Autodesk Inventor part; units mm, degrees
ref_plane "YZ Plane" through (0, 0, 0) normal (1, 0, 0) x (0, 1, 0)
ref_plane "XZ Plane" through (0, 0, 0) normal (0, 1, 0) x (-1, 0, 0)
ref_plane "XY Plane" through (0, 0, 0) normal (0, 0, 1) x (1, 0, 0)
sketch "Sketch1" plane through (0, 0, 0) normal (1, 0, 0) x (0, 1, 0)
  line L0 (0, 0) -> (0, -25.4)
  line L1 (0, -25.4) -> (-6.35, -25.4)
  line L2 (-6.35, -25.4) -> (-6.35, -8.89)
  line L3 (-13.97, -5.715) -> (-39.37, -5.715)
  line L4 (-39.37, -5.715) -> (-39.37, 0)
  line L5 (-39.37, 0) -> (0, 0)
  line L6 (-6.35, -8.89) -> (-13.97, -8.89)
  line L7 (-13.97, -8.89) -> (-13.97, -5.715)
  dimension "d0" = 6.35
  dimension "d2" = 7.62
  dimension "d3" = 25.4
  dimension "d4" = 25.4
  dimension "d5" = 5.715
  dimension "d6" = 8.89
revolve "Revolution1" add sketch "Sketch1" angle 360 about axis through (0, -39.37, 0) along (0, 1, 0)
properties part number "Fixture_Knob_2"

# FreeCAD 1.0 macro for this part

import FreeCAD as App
import Part
import Sketcher
from FreeCAD import Vector
Q = App.Units.Quantity


def add_polygon(sketch, points):
    """Adds a closed chain of lines whose ends are joined by coincident constraints."""
    first, n = sketch.GeometryCount, len(points)
    for a, b in zip(points, points[1:] + points[:1]):
        sketch.addGeometry(Part.LineSegment(App.Vector(*a, 0), App.Vector(*b, 0)), False)
    for i in range(n):
        sketch.addConstraint(Sketcher.Constraint("Coincident", first + i, 2, first + (i + 1) % n, 1))

doc = App.newDocument("Part")
body = doc.addObject("PartDesign::Body", "Body")

sketch1 = body.newObject("Sketcher::SketchObject", "Sketch")
sketch1.AttachmentSupport = (doc.getObject("YZ_Plane"), [""])
sketch1.MapMode = "FlatFace"
add_polygon(sketch1, [(0, -25.4), (0, 0), (-39.37, 0), (-39.37, -5.715), (-13.97, -5.715), (-13.97, -8.89), (-6.35, -8.89), (-6.35, -25.4)])
sketch1.addConstraint([
    Sketcher.Constraint("Vertical", 0),
    Sketcher.Constraint("Horizontal", 1),
    Sketcher.Constraint("Vertical", 2),
    Sketcher.Constraint("Horizontal", 3),
    Sketcher.Constraint("Vertical", 4),
    Sketcher.Constraint("Horizontal", 5),
    Sketcher.Constraint("Vertical", 6),
    Sketcher.Constraint("Horizontal", 7),
    Sketcher.Constraint("Coincident", 0, 2, -1, 1),
    Sketcher.Constraint("Equal", 3, 0),
    Sketcher.Constraint("DistanceX", 3, 1, 3, 2, Q("1 in")),
    Sketcher.Constraint("DistanceX", 5, 1, 5, 2, Q("0.3 in")),
    Sketcher.Constraint("DistanceX", 7, 1, 7, 2, Q("0.25 in")),
    Sketcher.Constraint("DistanceY", 2, 2, 2, 1, Q("0.225 in")),
    Sketcher.Constraint("DistanceY", 4, 2, -1, 1, Q("0.35 in")),
])
revolution = body.newObject("PartDesign::Revolution", "Revolution")
revolution.Profile = sketch1
revolution.ReferenceAxis = (sketch1, ["H_Axis"])
revolution.Angle = 360

doc.recompute()
